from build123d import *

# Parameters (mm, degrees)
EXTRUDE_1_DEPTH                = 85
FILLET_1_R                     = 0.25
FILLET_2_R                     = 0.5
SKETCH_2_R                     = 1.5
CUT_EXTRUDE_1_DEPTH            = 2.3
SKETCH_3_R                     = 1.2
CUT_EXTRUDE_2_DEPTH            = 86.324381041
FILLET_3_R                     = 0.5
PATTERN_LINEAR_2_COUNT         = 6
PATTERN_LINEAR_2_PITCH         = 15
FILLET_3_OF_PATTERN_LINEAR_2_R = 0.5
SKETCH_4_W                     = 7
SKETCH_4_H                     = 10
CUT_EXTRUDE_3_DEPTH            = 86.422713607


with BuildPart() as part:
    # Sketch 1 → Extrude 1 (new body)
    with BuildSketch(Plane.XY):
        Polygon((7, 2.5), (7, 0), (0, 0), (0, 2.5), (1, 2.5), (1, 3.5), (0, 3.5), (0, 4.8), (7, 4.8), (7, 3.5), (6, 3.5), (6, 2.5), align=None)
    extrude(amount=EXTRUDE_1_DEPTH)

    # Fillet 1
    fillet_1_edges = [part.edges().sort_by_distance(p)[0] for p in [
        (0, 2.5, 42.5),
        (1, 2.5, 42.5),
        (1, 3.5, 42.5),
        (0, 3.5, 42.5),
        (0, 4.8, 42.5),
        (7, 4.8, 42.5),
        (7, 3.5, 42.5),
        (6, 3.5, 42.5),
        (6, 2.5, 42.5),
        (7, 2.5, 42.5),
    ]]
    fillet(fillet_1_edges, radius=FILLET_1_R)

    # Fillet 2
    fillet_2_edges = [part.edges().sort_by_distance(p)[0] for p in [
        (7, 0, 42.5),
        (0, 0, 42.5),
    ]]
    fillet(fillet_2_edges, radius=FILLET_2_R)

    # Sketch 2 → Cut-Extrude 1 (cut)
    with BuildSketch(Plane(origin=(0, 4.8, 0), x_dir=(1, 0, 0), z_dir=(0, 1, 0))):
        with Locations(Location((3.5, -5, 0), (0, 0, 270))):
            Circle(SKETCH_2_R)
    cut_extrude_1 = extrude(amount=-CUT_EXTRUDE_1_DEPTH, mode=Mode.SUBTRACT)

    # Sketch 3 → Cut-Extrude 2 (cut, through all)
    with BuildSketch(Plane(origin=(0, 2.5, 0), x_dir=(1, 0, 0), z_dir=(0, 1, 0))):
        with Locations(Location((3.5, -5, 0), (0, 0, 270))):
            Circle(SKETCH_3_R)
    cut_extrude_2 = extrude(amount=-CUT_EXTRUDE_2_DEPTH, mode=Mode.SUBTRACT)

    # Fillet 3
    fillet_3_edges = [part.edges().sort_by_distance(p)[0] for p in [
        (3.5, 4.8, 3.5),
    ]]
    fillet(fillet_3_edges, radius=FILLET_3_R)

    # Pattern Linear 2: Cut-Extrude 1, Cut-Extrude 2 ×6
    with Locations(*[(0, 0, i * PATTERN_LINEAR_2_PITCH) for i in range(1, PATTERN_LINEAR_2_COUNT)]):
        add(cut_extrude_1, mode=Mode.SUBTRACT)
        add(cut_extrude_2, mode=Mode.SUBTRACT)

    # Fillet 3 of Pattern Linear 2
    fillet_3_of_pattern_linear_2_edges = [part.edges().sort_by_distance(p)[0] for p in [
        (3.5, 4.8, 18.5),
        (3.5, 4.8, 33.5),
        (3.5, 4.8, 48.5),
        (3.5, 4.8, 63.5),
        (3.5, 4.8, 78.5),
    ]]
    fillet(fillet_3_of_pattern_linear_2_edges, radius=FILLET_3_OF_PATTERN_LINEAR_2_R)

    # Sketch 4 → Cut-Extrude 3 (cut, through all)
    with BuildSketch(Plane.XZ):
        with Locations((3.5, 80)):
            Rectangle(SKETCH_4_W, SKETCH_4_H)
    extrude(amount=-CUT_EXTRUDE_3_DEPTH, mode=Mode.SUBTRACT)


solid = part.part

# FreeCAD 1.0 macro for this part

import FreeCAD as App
import Part
import Sketcher
from FreeCAD import Vector


def edges_at(feature, points):
    """Names of the edges that pass closest to the given points."""
    edges = feature.Shape.Edges
    near = lambda p: min(range(len(edges)), key=lambda i: edges[i].distToShape(Part.Vertex(*p))[0])
    return sorted({f"Edge{near(p) + 1}" for p in points})


def add_polygon(sketch, points):
    """Adds a closed chain of lines whose ends are joined by coincident constraints."""
    first, n = sketch.GeometryCount, len(points)
    for a, b in zip(points, points[1:] + points[:1]):
        sketch.addGeometry(Part.LineSegment(App.Vector(*a, 0), App.Vector(*b, 0)), False)
    for i in range(n):
        sketch.addConstraint(Sketcher.Constraint("Coincident", first + i, 2, first + (i + 1) % n, 1))

doc = App.newDocument("Part")
body = doc.addObject("PartDesign::Body", "Body")

# Sketch on XY plane
sketch1 = body.newObject("Sketcher::SketchObject", "Sketch")
sketch1.AttachmentSupport = (doc.getObject("XY_Plane"), [""])
sketch1.MapMode = "FlatFace"
add_polygon(sketch1, [(7, 0), (7, 2.5), (6, 2.5), (6, 3.5), (7, 3.5), (7, 4.8), (0, 4.8), (0, 3.5), (1, 3.5), (1, 2.5), (0, 2.5), (0, 0)])  # lines 0-11
sketch1.addConstraint([
    Sketcher.Constraint("Vertical", 0),
    Sketcher.Constraint("Horizontal", 1),
    Sketcher.Constraint("Vertical", 2),
    Sketcher.Constraint("Horizontal", 3),
    Sketcher.Constraint("Vertical", 4),
    Sketcher.Constraint("Horizontal", 5),
    Sketcher.Constraint("Vertical", 6),
    Sketcher.Constraint("Horizontal", 7),
    Sketcher.Constraint("Vertical", 8),
    Sketcher.Constraint("Horizontal", 9),
    Sketcher.Constraint("Vertical", 10),
    Sketcher.Constraint("Horizontal", 11),
    Sketcher.Constraint("Coincident", 10, 2, -1, 1),
    Sketcher.Constraint("PointOnObject", 5, 2, -2),
    Sketcher.Constraint("Horizontal", 3, 2, 6, 2),
    Sketcher.Constraint("Horizontal", 1, 2, 8, 2),
    Sketcher.Constraint("Vertical", 0, 2, 3, 2),
    Sketcher.Constraint("Equal", 3, 7),
    Sketcher.Constraint("Equal", 9, 2),
    Sketcher.Constraint("DistanceX", 1, 2, 1, 1, 1.0),
    Sketcher.Constraint("DistanceX", 5, 2, 5, 1, 7.0),
    Sketcher.Constraint("DistanceY", 0, 1, 0, 2, 2.5),
    Sketcher.Constraint("DistanceY", 4, 1, 4, 2, 1.3),
])
pad1 = body.newObject("PartDesign::Pad", "Pad")
pad1.Profile = sketch1
pad1.Length = 85
doc.recompute()

fillet = body.newObject("PartDesign::Fillet", "Fillet")
fillet.Base = (pad1, edges_at(pad1, [
    (0, 2.5, 42.5),
    (1, 2.5, 42.5),
    (1, 3.5, 42.5),
    (0, 3.5, 42.5),
    (0, 4.8, 42.5),
    (7, 4.8, 42.5),
    (7, 3.5, 42.5),
    (6, 3.5, 42.5),
    (6, 2.5, 42.5),
    (7, 2.5, 42.5),
]))
fillet.Radius = 0.25
doc.recompute()

fillet2 = body.newObject("PartDesign::Fillet", "Fillet001")
fillet2.Base = (fillet, edges_at(fillet, [(7, 0, 42.5), (0, 0, 42.5)]))
fillet2.Radius = 0.5

# Sketch on XZ plane
sketch2 = body.newObject("Sketcher::SketchObject", "Sketch001")
sketch2.AttachmentSupport = (doc.getObject("XZ_Plane"), [""])
sketch2.MapMode = "FlatFace"
sketch2.AttachmentOffset = App.Placement(Vector(0, 0, -4.8), App.Rotation())
sketch2.addGeometry(Part.Circle(Vector(3.5, 5, 0), Vector(0, 0, 1), 1.5), False)
sketch2.addConstraint([
    Sketcher.Constraint("Diameter", 0, 3.0),
    Sketcher.Constraint("DistanceY", -1, 1, 0, 3, 5.0),
    Sketcher.Constraint("DistanceX", -1, 1, 0, 3, 3.5),
])
pocket1 = body.newObject("PartDesign::Pocket", "Pocket")
pocket1.Profile = sketch2
pocket1.Length = 2.3
pocket1.Reversed = True

# Sketch on XZ plane
sketch3 = body.newObject("Sketcher::SketchObject", "Sketch002")
sketch3.AttachmentSupport = (doc.getObject("XZ_Plane"), [""])
sketch3.MapMode = "FlatFace"
sketch3.AttachmentOffset = App.Placement(Vector(0, 0, -2.5), App.Rotation())
sketch3.addGeometry(Part.Circle(Vector(3.5, 5, 0), Vector(0, 0, 1), 1.2), False)
sketch3.addConstraint([
    Sketcher.Constraint("Diameter", 0, 2.4),
    Sketcher.Constraint("DistanceY", -1, 1, 0, 3, 5.0),
    Sketcher.Constraint("DistanceX", -1, 1, 0, 3, 3.5),
])
pocket2 = body.newObject("PartDesign::Pocket", "Pocket001")
pocket2.Profile = sketch3
pocket2.Type = "ThroughAll"
pocket2.Reversed = True
doc.recompute()

fillet3 = body.newObject("PartDesign::Fillet", "Fillet002")
fillet3.Base = (pocket2, edges_at(pocket2, [(3.5, 4.8, 3.5)]))
fillet3.Radius = 0.5
doc.recompute()

linearpattern = body.newObject("PartDesign::LinearPattern", "LinearPattern")
linearpattern.Originals = [pocket1, pocket2]
linearpattern.Direction = (doc.getObject("Z_Axis"), [""])
linearpattern.Mode = "offset"
linearpattern.Offset = 15
linearpattern.Occurrences = 6
body.Tip = linearpattern
doc.recompute()

fillet4 = body.newObject("PartDesign::Fillet", "Fillet003")
fillet4.Base = (linearpattern, edges_at(linearpattern, [
    (3.5, 4.8, 18.5),
    (3.5, 4.8, 33.5),
    (3.5, 4.8, 48.5),
    (3.5, 4.8, 63.5),
    (3.5, 4.8, 78.5),
]))
fillet4.Radius = 0.5

# Sketch on XZ plane
sketch4 = body.newObject("Sketcher::SketchObject", "Sketch003")
sketch4.AttachmentSupport = (doc.getObject("XZ_Plane"), [""])
sketch4.MapMode = "FlatFace"
add_polygon(sketch4, [(0, 85), (0, 75), (7, 75), (7, 85)])  # lines 0-3
sketch4.addConstraint([
    Sketcher.Constraint("Vertical", 0),
    Sketcher.Constraint("Horizontal", 1),
    Sketcher.Constraint("Vertical", 2),
    Sketcher.Constraint("Horizontal", 3),
    Sketcher.Constraint("PointOnObject", 0, 2, -2),
    Sketcher.Constraint("DistanceX", 1, 1, 1, 2, 7.0),
    Sketcher.Constraint("DistanceY", 0, 2, 0, 1, 10.0),
    Sketcher.Constraint("DistanceY", -1, 1, 0, 2, 75.0),
])
pocket3 = body.newObject("PartDesign::Pocket", "Pocket002")
pocket3.Profile = sketch4
pocket3.Type = "ThroughAll"

doc.recompute()
